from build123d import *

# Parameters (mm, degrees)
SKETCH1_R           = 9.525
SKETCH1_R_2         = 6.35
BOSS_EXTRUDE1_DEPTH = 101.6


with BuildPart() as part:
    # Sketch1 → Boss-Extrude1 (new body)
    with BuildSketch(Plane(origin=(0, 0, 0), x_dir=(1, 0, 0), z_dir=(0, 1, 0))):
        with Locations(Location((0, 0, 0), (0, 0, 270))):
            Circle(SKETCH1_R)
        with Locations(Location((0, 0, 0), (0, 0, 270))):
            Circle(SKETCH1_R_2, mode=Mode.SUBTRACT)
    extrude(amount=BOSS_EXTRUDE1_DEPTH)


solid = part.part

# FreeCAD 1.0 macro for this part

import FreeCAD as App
import Part
import Sketcher
from FreeCAD import Vector
Q = App.Units.Quantity

doc = App.newDocument("Part")
body = doc.addObject("PartDesign::Body", "Body")

# Sketch on XZ plane
sketch1 = body.newObject("Sketcher::SketchObject", "Sketch")
sketch1.AttachmentSupport = (doc.getObject("XZ_Plane"), [""])
sketch1.MapMode = "FlatFace"
sketch1.addGeometry(Part.Circle(Vector(0, 0, 0), Vector(0, 0, 1), 10), False)
sketch1.addGeometry(Part.Circle(Vector(0, 0, 0), Vector(0, 0, 1), 6), False)
sketch1.addConstraint(Sketcher.Constraint("Coincident", 0, 3, -1, 1))
sketch1.addConstraint(Sketcher.Constraint("Coincident", 1, 3, -1, 1))
sketch1.addConstraint(Sketcher.Constraint("Diameter", 1, Q("0.5 in")))
sketch1.addConstraint(Sketcher.Constraint("Diameter", 0, Q("0.75 in")))
pad1 = body.newObject("PartDesign::Pad", "Pad")
pad1.Profile = sketch1
pad1.Length = Q("4 in")
pad1.Reversed = True

doc.recompute()
